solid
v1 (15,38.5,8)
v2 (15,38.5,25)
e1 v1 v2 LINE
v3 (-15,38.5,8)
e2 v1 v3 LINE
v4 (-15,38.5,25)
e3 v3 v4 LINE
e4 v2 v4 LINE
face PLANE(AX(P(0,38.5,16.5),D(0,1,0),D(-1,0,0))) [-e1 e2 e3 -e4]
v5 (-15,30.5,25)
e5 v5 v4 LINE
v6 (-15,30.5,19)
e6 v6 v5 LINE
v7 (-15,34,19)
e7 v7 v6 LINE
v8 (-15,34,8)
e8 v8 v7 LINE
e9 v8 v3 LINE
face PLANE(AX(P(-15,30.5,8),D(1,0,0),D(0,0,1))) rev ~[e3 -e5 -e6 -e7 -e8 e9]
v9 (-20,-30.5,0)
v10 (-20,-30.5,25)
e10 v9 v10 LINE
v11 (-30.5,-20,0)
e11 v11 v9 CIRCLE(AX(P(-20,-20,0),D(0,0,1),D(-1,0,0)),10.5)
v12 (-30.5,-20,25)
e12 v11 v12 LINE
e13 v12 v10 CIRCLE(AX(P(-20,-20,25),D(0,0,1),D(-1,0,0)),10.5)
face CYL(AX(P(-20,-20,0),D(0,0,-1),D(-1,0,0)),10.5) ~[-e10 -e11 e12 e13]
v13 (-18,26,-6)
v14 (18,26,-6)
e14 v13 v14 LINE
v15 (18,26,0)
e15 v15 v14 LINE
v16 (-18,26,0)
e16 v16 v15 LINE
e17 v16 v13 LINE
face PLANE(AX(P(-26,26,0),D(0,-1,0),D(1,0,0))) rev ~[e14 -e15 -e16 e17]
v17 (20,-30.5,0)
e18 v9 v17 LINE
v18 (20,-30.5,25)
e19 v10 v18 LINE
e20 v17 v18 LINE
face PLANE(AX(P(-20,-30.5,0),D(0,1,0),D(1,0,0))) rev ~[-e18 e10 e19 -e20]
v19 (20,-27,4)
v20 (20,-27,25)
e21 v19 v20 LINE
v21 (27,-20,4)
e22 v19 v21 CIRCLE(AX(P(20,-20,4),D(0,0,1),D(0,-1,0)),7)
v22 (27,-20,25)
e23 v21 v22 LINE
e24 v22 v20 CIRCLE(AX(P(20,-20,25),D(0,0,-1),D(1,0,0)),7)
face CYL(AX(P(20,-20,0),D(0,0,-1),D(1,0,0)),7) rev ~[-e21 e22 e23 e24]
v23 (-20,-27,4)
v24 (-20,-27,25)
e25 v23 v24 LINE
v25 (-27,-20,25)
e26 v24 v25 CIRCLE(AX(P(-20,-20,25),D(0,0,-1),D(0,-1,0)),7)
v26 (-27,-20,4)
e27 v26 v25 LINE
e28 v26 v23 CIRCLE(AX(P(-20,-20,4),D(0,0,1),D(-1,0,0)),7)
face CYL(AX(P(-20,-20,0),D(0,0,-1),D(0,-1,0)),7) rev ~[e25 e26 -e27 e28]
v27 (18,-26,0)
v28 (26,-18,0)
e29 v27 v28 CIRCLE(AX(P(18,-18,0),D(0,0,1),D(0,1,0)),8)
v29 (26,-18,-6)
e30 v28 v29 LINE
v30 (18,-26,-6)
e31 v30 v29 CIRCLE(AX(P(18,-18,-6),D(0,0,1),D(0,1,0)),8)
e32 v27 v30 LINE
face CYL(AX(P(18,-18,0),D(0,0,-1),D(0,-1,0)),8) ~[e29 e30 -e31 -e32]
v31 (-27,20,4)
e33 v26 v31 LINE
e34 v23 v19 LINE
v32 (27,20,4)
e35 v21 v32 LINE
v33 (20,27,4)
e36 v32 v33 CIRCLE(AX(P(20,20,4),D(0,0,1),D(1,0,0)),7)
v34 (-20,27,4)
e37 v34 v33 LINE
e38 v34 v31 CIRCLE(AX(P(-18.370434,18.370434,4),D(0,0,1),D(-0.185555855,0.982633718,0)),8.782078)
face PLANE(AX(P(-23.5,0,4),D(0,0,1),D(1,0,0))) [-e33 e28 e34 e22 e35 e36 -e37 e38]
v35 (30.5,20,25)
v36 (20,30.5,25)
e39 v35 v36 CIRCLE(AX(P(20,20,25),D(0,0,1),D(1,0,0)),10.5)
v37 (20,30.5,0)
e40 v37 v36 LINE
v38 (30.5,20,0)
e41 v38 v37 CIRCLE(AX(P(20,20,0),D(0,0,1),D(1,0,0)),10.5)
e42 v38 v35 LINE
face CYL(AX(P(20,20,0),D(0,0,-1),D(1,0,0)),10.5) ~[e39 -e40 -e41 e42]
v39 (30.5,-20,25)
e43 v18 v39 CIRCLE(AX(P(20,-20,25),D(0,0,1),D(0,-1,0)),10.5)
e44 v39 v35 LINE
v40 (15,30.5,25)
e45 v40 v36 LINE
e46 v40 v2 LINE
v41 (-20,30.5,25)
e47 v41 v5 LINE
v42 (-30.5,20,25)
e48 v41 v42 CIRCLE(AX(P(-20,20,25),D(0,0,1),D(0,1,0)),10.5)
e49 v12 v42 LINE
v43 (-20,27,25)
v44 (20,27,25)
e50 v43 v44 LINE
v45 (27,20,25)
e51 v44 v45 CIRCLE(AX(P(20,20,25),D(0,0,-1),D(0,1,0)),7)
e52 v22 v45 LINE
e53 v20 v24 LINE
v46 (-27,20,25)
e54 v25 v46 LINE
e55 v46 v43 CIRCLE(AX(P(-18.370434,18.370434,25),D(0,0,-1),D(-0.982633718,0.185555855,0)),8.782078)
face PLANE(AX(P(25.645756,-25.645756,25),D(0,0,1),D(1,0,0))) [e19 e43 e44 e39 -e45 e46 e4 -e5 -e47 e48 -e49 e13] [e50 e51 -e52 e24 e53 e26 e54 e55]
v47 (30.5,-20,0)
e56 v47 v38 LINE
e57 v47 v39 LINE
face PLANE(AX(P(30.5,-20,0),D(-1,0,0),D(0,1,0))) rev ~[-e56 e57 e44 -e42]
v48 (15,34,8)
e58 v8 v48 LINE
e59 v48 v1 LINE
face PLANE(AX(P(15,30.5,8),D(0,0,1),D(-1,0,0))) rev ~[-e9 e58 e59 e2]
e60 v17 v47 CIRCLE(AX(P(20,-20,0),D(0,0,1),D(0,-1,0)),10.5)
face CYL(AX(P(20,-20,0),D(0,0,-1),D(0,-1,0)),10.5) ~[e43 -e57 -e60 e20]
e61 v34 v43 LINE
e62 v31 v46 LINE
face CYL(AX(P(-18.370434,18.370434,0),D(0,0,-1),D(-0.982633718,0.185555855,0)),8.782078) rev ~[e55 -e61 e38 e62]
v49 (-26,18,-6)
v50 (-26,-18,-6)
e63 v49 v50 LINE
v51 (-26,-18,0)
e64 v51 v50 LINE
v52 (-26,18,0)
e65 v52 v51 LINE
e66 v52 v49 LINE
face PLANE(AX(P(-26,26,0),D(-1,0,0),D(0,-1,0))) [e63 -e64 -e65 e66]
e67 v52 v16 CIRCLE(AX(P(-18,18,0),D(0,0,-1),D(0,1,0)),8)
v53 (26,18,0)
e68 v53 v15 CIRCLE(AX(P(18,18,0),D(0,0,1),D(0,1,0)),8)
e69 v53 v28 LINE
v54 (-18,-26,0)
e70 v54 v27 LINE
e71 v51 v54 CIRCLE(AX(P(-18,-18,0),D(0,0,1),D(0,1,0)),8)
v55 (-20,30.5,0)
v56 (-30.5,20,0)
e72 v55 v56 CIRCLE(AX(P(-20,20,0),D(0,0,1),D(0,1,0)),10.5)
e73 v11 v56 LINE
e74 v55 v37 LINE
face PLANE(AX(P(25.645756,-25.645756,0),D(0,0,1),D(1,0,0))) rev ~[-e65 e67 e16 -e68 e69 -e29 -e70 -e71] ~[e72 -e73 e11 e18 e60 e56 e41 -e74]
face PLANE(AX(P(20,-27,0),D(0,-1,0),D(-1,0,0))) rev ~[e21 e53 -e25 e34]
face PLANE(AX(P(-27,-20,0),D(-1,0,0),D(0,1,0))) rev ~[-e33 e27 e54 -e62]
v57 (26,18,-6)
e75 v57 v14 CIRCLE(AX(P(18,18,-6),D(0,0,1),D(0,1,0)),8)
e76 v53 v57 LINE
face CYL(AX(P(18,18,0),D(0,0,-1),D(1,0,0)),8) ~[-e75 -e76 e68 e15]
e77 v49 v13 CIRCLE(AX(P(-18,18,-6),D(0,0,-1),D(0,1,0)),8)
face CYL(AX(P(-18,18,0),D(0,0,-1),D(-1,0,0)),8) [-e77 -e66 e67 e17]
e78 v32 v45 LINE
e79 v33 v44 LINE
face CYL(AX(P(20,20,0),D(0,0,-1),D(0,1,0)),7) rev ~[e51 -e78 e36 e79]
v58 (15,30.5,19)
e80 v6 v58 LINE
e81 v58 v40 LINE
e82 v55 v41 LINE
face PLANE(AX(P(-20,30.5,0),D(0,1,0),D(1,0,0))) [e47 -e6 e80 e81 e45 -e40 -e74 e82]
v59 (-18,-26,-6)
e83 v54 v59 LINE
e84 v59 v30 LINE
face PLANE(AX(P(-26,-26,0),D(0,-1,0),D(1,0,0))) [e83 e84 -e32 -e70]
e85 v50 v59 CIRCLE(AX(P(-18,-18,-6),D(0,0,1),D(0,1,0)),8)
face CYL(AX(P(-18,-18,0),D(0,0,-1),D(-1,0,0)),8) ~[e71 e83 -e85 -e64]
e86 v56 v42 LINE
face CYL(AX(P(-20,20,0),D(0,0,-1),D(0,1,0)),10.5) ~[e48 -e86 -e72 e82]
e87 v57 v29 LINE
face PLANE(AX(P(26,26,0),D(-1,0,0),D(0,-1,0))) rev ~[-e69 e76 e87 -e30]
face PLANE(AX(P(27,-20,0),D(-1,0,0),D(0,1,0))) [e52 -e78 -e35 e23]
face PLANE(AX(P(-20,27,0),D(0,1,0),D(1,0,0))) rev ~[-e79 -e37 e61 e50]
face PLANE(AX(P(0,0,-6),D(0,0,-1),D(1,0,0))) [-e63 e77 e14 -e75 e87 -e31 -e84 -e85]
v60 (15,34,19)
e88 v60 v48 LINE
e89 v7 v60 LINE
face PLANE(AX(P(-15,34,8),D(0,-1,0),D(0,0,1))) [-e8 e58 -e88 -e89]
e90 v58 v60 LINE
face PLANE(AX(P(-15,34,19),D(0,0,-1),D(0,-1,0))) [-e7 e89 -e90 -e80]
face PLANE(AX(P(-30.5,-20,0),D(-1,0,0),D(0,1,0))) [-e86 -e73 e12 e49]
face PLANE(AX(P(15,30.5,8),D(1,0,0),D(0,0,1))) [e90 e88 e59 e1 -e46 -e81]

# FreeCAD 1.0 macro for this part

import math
import FreeCAD as App
import Part
import Sketcher

V = App.Vector
Q = App.Units.Quantity


def edges_at(feature, points):
    """Names of the edges that pass closest to the given points."""
    edges = feature.Shape.Edges
    near = lambda p: min(range(len(edges)), key=lambda i: edges[i].distToShape(Part.Vertex(*p))[0])
    return sorted({f"Edge{near(p) + 1}" for p in points})

doc = App.newDocument("Part")
body = doc.addObject("PartDesign::Body", "Body")

# Sketch on XY plane
sketch1 = body.newObject("Sketcher::SketchObject", "Sketch")
sketch1.AttachmentSupport = (doc.getObject("XY_Plane"), [""])
sketch1.MapMode = "FlatFace"
sketch1.addGeometry(Part.LineSegment(V(-27, 20, 0), V(-27, -20, 0)), False)
sketch1.addGeometry(Part.ArcOfCircle(Part.Circle(V(-20, -20, 0), V(0, 0, 1), 7), math.radians(180), math.radians(270)), False)
sketch1.addGeometry(Part.LineSegment(V(-20, -27, 0), V(20, -27, 0)), False)
sketch1.addGeometry(Part.ArcOfCircle(Part.Circle(V(20, -20, 0), V(0, 0, 1), 7), math.radians(-90), math.radians(0)), False)
sketch1.addGeometry(Part.LineSegment(V(27, -20, 0), V(27, 20, 0)), False)
sketch1.addGeometry(Part.ArcOfCircle(Part.Circle(V(20, 20, 0), V(0, 0, 1), 7), math.radians(0), math.radians(90)), False)
sketch1.addGeometry(Part.LineSegment(V(20, 27, 0), V(-20, 27, 0)), False)
sketch1.addGeometry(Part.ArcOfCircle(Part.Circle(V(-18, 18, 0), V(0, 0, 1), 9), math.radians(101), math.radians(169)), False)
sketch1.addConstraint(Sketcher.Constraint("Tangent", 0, 2, 1, 1))
sketch1.addConstraint(Sketcher.Constraint("Tangent", 1, 2, 2, 1))
sketch1.addConstraint(Sketcher.Constraint("Tangent", 2, 2, 3, 1))
sketch1.addConstraint(Sketcher.Constraint("Tangent", 3, 2, 4, 1))
sketch1.addConstraint(Sketcher.Constraint("Tangent", 4, 2, 5, 1))
sketch1.addConstraint(Sketcher.Constraint("Tangent", 5, 2, 6, 1))
sketch1.addConstraint(Sketcher.Constraint("Coincident", 6, 2, 7, 1))
sketch1.addConstraint(Sketcher.Constraint("Coincident", 7, 2, 0, 1))
sketch1.addConstraint(Sketcher.Constraint("Vertical", 0))
sketch1.addConstraint(Sketcher.Constraint("Horizontal", 2))
sketch1.addConstraint(Sketcher.Constraint("Vertical", 4))
sketch1.addConstraint(Sketcher.Constraint("Horizontal", 6))
sketch1.addConstraint(Sketcher.Constraint("Equal", 1, 3))
sketch1.addConstraint(Sketcher.Constraint("Equal", 3, 5))
sketch1.addConstraint(Sketcher.Constraint("Symmetric", 1, 3, 5, 3, -1, 1))
sketch1.addConstraint(Sketcher.Constraint("Horizontal", 4, 2, 7, 2))
sketch1.addConstraint(Sketcher.Constraint("Vertical", 1, 2, 6, 2))
sketch1.addConstraint(Sketcher.Constraint("Equal", 6, 0))
sketch1.addConstraint(Sketcher.Constraint("Radius", 1, Q("7 mm")))
sketch1.addConstraint(Sketcher.Constraint("DistanceX", 2, 1, 2, 2, Q("40 mm")))
sketch1.addConstraint(Sketcher.Constraint("Radius", 7, Q("8.782078 mm")))
pad1 = body.newObject("PartDesign::Pad", "Pad")
pad1.Profile = sketch1
pad1.Length = 4

# Sketch on XY plane
sketch2 = body.newObject("Sketcher::SketchObject", "Sketch001")
sketch2.AttachmentSupport = (doc.getObject("XY_Plane"), [""])
sketch2.MapMode = "FlatFace"
sketch2.addGeometry(Part.ArcOfCircle(Part.Circle(V(20, -20, 0), V(0, 0, 1), 10), math.radians(-90), math.radians(0)), False)
sketch2.addGeometry(Part.LineSegment(V(30, -20, 0), V(30, 20, 0)), False)
sketch2.addGeometry(Part.ArcOfCircle(Part.Circle(V(20, 20, 0), V(0, 0, 1), 10), math.radians(0), math.radians(90)), False)
sketch2.addGeometry(Part.LineSegment(V(20, 30, 0), V(-20, 30, 0)), False)
sketch2.addGeometry(Part.ArcOfCircle(Part.Circle(V(-20, 20, 0), V(0, 0, 1), 10), math.radians(90), math.radians(180)), False)
sketch2.addGeometry(Part.LineSegment(V(-30, 20, 0), V(-30, -20, 0)), False)
sketch2.addGeometry(Part.ArcOfCircle(Part.Circle(V(-20, -20, 0), V(0, 0, 1), 10), math.radians(180), math.radians(270)), False)
sketch2.addGeometry(Part.LineSegment(V(-20, -30, 0), V(20, -30, 0)), False)
sketch2.addGeometry(Part.ArcOfCircle(Part.Circle(V(20, -20, 0), V(0, 0, 1), 7), math.radians(-90), math.radians(0)), False)
sketch2.addGeometry(Part.LineSegment(V(20, -27, 0), V(-20, -27, 0)), False)
sketch2.addGeometry(Part.ArcOfCircle(Part.Circle(V(-20, -20, 0), V(0, 0, 1), 7), math.radians(180), math.radians(270)), False)
sketch2.addGeometry(Part.LineSegment(V(-27, -20, 0), V(-27, 20, 0)), False)
sketch2.addGeometry(Part.ArcOfCircle(Part.Circle(V(-18, 18, 0), V(0, 0, 1), 9), math.radians(101), math.radians(169)), False)
sketch2.addGeometry(Part.LineSegment(V(-20, 27, 0), V(20, 27, 0)), False)
sketch2.addGeometry(Part.ArcOfCircle(Part.Circle(V(20, 20, 0), V(0, 0, 1), 7), math.radians(0), math.radians(90)), False)
sketch2.addGeometry(Part.LineSegment(V(27, 20, 0), V(27, -20, 0)), False)
sketch2.addConstraint(Sketcher.Constraint("Tangent", 0, 2, 1, 1))
sketch2.addConstraint(Sketcher.Constraint("Tangent", 1, 2, 2, 1))
sketch2.addConstraint(Sketcher.Constraint("Tangent", 2, 2, 3, 1))
sketch2.addConstraint(Sketcher.Constraint("Tangent", 3, 2, 4, 1))
sketch2.addConstraint(Sketcher.Constraint("Tangent", 4, 2, 5, 1))
sketch2.addConstraint(Sketcher.Constraint("Tangent", 5, 2, 6, 1))
sketch2.addConstraint(Sketcher.Constraint("Tangent", 6, 2, 7, 1))
sketch2.addConstraint(Sketcher.Constraint("Tangent", 7, 2, 0, 1))
sketch2.addConstraint(Sketcher.Constraint("Tangent", 8, 1, 9, 1))
sketch2.addConstraint(Sketcher.Constraint("Tangent", 9, 2, 10, 2))
sketch2.addConstraint(Sketcher.Constraint("Tangent", 10, 1, 11, 1))
sketch2.addConstraint(Sketcher.Constraint("Coincident", 11, 2, 12, 2))
sketch2.addConstraint(Sketcher.Constraint("Coincident", 12, 1, 13, 1))
sketch2.addConstraint(Sketcher.Constraint("Tangent", 13, 2, 14, 2))
sketch2.addConstraint(Sketcher.Constraint("Tangent", 14, 1, 15, 1))
sketch2.addConstraint(Sketcher.Constraint("Tangent", 15, 2, 8, 2))
sketch2.addConstraint(Sketcher.Constraint("Vertical", 1))
sketch2.addConstraint(Sketcher.Constraint("Horizontal", 3))
sketch2.addConstraint(Sketcher.Constraint("Vertical", 5))
sketch2.addConstraint(Sketcher.Constraint("Horizontal", 7))
sketch2.addConstraint(Sketcher.Constraint("Horizontal", 9))
sketch2.addConstraint(Sketcher.Constraint("Vertical", 11))
sketch2.addConstraint(Sketcher.Constraint("Horizontal", 13))
sketch2.addConstraint(Sketcher.Constraint("Vertical", 15))
sketch2.addConstraint(Sketcher.Constraint("Coincident", 8, 3, 0, 3))
sketch2.addConstraint(Sketcher.Constraint("Coincident", 10, 3, 6, 3))
sketch2.addConstraint(Sketcher.Constraint("Coincident", 14, 3, 2, 3))
sketch2.addConstraint(Sketcher.Constraint("Equal", 0, 2))
sketch2.addConstraint(Sketcher.Constraint("Equal", 2, 4))
sketch2.addConstraint(Sketcher.Constraint("Equal", 4, 6))
sketch2.addConstraint(Sketcher.Constraint("Symmetric", 0, 3, 4, 3, -1, 1))
sketch2.addConstraint(Sketcher.Constraint("Horizontal", 4, 2, 11, 2))
sketch2.addConstraint(Sketcher.Constraint("Vertical", 9, 2, 12, 1))
sketch2.addConstraint(Sketcher.Constraint("Equal", 13, 1))
sketch2.addConstraint(Sketcher.Constraint("Radius", 8, Q("7 mm")))
sketch2.addConstraint(Sketcher.Constraint("Radius", 0, Q("10.5 mm")))
sketch2.addConstraint(Sketcher.Constraint("DistanceX", 3, 2, 3, 1, Q("40 mm")))
sketch2.addConstraint(Sketcher.Constraint("Radius", 12, Q("8.782078 mm")))
pad2 = body.newObject("PartDesign::Pad", "Pad001")
pad2.Profile = sketch2
pad2.Length = 25

# Sketch on XZ plane
sketch3 = body.newObject("Sketcher::SketchObject", "Sketch002")
sketch3.AttachmentSupport = (doc.getObject("XZ_Plane"), [""])
sketch3.MapMode = "FlatFace"
sketch3.AttachmentOffset = App.Placement(V(0, 0, -30.5), App.Rotation())
sketch3.addGeometry(Part.LineSegment(V(15, 25, 0), V(15, 8, 0)), False)
sketch3.addGeometry(Part.LineSegment(V(15, 8, 0), V(-15, 8, 0)), False)
sketch3.addGeometry(Part.LineSegment(V(-15, 8, 0), V(-15, 25, 0)), False)
sketch3.addGeometry(Part.LineSegment(V(-15, 25, 0), V(15, 25, 0)), False)
sketch3.addConstraint(Sketcher.Constraint("Coincident", 0, 2, 1, 1))
sketch3.addConstraint(Sketcher.Constraint("Coincident", 1, 2, 2, 1))
sketch3.addConstraint(Sketcher.Constraint("Coincident", 2, 2, 3, 1))
sketch3.addConstraint(Sketcher.Constraint("Coincident", 3, 2, 0, 1))
sketch3.addConstraint(Sketcher.Constraint("Vertical", 0))
sketch3.addConstraint(Sketcher.Constraint("Horizontal", 1))
sketch3.addConstraint(Sketcher.Constraint("Vertical", 2))
sketch3.addConstraint(Sketcher.Constraint("Horizontal", 3))
sketch3.addConstraint(Sketcher.Constraint("DistanceX", 1, 2, 1, 1, Q("30 mm")))
sketch3.addConstraint(Sketcher.Constraint("DistanceY", 0, 2, 0, 1, Q("17 mm")))
sketch3.addConstraint(Sketcher.Constraint("DistanceX", -1, 1, 0, 2, Q("15 mm")))
sketch3.addConstraint(Sketcher.Constraint("DistanceY", -1, 1, 0, 2, Q("8 mm")))
pad3 = body.newObject("PartDesign::Pad", "Pad002")
pad3.Profile = sketch3
pad3.Length = 8
pad3.Reversed = True

# Sketch on YZ plane
sketch4 = body.newObject("Sketcher::SketchObject", "Sketch003")
sketch4.AttachmentSupport = (doc.getObject("YZ_Plane"), [""])
sketch4.MapMode = "FlatFace"
sketch4.AttachmentOffset = App.Placement(V(0, 0, -15), App.Rotation())
sketch4.addGeometry(Part.LineSegment(V(34, 19, 0), V(34, 8, 0)), False)
sketch4.addGeometry(Part.LineSegment(V(34, 8, 0), V(30.5, 8, 0)), False)
sketch4.addGeometry(Part.LineSegment(V(30.5, 8, 0), V(30.5, 19, 0)), False)
sketch4.addGeometry(Part.LineSegment(V(30.5, 19, 0), V(34, 19, 0)), False)
sketch4.addConstraint(Sketcher.Constraint("Coincident", 0, 2, 1, 1))
sketch4.addConstraint(Sketcher.Constraint("Coincident", 1, 2, 2, 1))
sketch4.addConstraint(Sketcher.Constraint("Coincident", 2, 2, 3, 1))
sketch4.addConstraint(Sketcher.Constraint("Coincident", 3, 2, 0, 1))
sketch4.addConstraint(Sketcher.Constraint("Vertical", 0))
sketch4.addConstraint(Sketcher.Constraint("Horizontal", 1))
sketch4.addConstraint(Sketcher.Constraint("Vertical", 2))
sketch4.addConstraint(Sketcher.Constraint("Horizontal", 3))
sketch4.addConstraint(Sketcher.Constraint("DistanceY", 0, 2, 0, 1, Q("11 mm")))
sketch4.addConstraint(Sketcher.Constraint("DistanceX", 1, 2, 1, 1, Q("3.5 mm")))
sketch4.addConstraint(Sketcher.Constraint("DistanceX", -1, 1, 0, 2, Q("34 mm")))
sketch4.addConstraint(Sketcher.Constraint("DistanceY", -1, 1, 0, 2, Q("8 mm")))
pocket1 = body.newObject("PartDesign::Pocket", "Pocket")
pocket1.Profile = sketch4
pocket1.Length = 33
pocket1.Reversed = True

# Sketch on XY plane
sketch5 = body.newObject("Sketcher::SketchObject", "Sketch004")
sketch5.AttachmentSupport = (doc.getObject("XY_Plane"), [""])
sketch5.MapMode = "FlatFace"
sketch5.addGeometry(Part.LineSegment(V(-26, -26, 0), V(-26, 26, 0)), False)
sketch5.addGeometry(Part.LineSegment(V(-26, 26, 0), V(26, 26, 0)), False)
sketch5.addGeometry(Part.LineSegment(V(26, 26, 0), V(26, -26, 0)), False)
sketch5.addGeometry(Part.LineSegment(V(26, -26, 0), V(-26, -26, 0)), False)
sketch5.addConstraint(Sketcher.Constraint("Coincident", 0, 2, 1, 1))
sketch5.addConstraint(Sketcher.Constraint("Coincident", 1, 2, 2, 1))
sketch5.addConstraint(Sketcher.Constraint("Coincident", 2, 2, 3, 1))
sketch5.addConstraint(Sketcher.Constraint("Coincident", 3, 2, 0, 1))
sketch5.addConstraint(Sketcher.Constraint("Vertical", 0))
sketch5.addConstraint(Sketcher.Constraint("Horizontal", 1))
sketch5.addConstraint(Sketcher.Constraint("Vertical", 2))
sketch5.addConstraint(Sketcher.Constraint("Horizontal", 3))
sketch5.addConstraint(Sketcher.Constraint("Symmetric", 0, 2, 2, 2, -1, 1))
sketch5.addConstraint(Sketcher.Constraint("Equal", 3, 0))
sketch5.addConstraint(Sketcher.Constraint("DistanceX", 1, 1, 1, 2, Q("52 mm")))
pad4 = body.newObject("PartDesign::Pad", "Pad003")
pad4.Profile = sketch5
pad4.Length = 6
pad4.Reversed = True
doc.recompute()

fillet = body.newObject("PartDesign::Fillet", "Fillet")
fillet.Base = (pad4, edges_at(pad4, [
    (-26, -26, -3),
    (26, -26, -3),
    (26, 26, -3),
    (-26, 26, -3),
]))
fillet.Radius = 8

doc.recompute()
